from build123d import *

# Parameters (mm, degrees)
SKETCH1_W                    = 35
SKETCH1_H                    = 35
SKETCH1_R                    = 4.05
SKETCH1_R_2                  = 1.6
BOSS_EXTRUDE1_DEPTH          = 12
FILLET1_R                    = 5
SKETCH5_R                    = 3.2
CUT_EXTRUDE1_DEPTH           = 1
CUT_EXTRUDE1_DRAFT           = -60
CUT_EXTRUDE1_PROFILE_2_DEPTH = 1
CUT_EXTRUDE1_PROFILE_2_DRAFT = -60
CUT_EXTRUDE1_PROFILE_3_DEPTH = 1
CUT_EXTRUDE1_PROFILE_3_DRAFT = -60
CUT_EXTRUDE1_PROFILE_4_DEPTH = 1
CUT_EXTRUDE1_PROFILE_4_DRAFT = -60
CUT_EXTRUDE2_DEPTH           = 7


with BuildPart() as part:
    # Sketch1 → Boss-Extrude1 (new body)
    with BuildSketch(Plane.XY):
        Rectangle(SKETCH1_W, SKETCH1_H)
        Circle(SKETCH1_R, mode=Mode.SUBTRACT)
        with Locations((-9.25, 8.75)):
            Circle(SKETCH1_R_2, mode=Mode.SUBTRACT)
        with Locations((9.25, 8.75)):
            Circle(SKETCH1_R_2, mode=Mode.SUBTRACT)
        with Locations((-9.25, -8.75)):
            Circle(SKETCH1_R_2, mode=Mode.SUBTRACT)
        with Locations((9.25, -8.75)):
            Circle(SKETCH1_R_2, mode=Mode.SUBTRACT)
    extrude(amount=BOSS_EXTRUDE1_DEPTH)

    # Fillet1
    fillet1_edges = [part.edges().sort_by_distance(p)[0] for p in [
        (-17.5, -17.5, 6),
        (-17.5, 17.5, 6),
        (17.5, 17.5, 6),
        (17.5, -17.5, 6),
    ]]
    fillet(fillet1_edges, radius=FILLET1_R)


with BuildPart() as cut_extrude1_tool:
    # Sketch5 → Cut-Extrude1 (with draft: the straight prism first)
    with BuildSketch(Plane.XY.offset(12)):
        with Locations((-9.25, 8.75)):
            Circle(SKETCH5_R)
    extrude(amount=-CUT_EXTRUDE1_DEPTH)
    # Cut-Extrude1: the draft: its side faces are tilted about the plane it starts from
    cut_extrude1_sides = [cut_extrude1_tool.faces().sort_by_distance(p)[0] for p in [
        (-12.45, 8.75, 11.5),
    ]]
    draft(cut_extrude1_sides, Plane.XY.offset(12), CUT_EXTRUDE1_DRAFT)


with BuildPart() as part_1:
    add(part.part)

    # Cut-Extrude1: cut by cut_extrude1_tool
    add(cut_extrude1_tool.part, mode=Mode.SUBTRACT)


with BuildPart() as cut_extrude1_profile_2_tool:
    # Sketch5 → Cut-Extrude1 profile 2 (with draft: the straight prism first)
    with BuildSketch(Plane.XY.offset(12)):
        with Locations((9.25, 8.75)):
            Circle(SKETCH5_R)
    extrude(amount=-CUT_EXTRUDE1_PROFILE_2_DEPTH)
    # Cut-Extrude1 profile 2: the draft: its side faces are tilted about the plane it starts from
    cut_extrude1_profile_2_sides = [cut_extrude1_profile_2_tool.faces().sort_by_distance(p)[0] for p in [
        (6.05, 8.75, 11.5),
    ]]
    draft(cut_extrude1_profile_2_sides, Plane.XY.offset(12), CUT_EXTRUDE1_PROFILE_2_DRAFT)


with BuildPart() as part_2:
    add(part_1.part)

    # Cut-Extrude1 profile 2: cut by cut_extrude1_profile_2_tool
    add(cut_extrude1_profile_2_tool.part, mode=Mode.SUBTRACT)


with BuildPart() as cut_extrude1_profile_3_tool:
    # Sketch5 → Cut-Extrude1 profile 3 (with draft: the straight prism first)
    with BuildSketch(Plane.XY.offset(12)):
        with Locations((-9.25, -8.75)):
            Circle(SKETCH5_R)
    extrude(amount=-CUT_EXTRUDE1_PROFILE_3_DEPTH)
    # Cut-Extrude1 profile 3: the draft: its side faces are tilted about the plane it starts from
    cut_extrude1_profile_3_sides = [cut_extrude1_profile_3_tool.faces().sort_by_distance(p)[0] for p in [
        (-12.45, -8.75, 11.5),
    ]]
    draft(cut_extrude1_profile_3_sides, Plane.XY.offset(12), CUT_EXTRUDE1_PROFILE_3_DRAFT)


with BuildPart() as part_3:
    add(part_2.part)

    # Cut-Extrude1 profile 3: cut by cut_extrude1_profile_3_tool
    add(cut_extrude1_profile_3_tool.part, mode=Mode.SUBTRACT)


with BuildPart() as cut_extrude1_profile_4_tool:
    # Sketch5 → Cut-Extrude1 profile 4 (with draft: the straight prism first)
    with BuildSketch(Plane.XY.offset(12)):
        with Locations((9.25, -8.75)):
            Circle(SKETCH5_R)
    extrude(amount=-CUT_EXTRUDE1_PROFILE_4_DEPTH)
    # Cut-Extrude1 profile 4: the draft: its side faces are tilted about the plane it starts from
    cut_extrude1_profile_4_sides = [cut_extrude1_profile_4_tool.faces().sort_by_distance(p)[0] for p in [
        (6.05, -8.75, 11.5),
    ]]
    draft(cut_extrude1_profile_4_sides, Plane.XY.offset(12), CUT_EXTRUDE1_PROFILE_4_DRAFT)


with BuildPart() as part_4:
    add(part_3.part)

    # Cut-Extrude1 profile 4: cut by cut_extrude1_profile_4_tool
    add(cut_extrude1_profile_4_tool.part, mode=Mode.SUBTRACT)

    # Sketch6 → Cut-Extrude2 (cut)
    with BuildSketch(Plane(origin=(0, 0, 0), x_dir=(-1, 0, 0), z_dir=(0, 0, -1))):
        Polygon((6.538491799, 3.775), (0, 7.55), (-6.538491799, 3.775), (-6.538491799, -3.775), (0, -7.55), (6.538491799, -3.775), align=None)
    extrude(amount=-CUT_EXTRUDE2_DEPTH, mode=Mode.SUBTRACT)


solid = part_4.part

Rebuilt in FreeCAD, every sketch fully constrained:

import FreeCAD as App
import Part
import Sketcher

V = App.Vector
Q = App.Units.Quantity


def edges_at(feature, points):
    """Names of the edges that pass closest to the given points."""
    edges = feature.Shape.Edges
    near = lambda p: min(range(len(edges)), key=lambda i: edges[i].distToShape(Part.Vertex(*p))[0])
    return sorted({f"Edge{near(p) + 1}" for p in points})


def faces_at(feature, points):
    """Names of the faces that lie closest to the given points."""
    faces = feature.Shape.Faces
    near = lambda p: min(range(len(faces)), key=lambda i: faces[i].distToShape(Part.Vertex(*p))[0])
    return sorted({f"Face{near(p) + 1}" for p in points})


def add_polygon(sketch, points):
    """Adds a closed chain of lines whose ends are joined by coincident constraints."""
    first, n = sketch.GeometryCount, len(points)
    for a, b in zip(points, points[1:] + points[:1]):
        sketch.addGeometry(Part.LineSegment(App.Vector(*a, 0), App.Vector(*b, 0)), False)
    for i in range(n):
        sketch.addConstraint(Sketcher.Constraint("Coincident", first + i, 2, first + (i + 1) % n, 1))

doc = App.newDocument("Part")
body = doc.addObject("PartDesign::Body", "Body")

sketch1 = body.newObject("Sketcher::SketchObject", "Sketch")
sketch1.AttachmentSupport = (doc.getObject("XY_Plane"), [""])
sketch1.MapMode = "FlatFace"
add_polygon(sketch1, [(-17.5, 17.5), (-17.5, -17.5), (17.5, -17.5), (17.5, 17.5)])
sketch1.addGeometry(Part.Circle(V(-9.25, -8.75, 0), V(0, 0, 1), 1.6), False)
sketch1.addGeometry(Part.Circle(V(9.25, -8.75, 0), V(0, 0, 1), 1.6), False)
sketch1.addGeometry(Part.Circle(V(-9.25, 8.75, 0), V(0, 0, 1), 1.6), False)
sketch1.addGeometry(Part.Circle(V(0, 0, 0), V(0, 0, 1), 4.05), False)
sketch1.addGeometry(Part.Circle(V(9.25, 8.75, 0), V(0, 0, 1), 1.6), False)
sketch1.addConstraint([
    Sketcher.Constraint("Vertical", 0),
    Sketcher.Constraint("Horizontal", 1),
    Sketcher.Constraint("Vertical", 2),
    Sketcher.Constraint("Horizontal", 3),
    Sketcher.Constraint("Coincident", 7, 3, -1, 1),
    Sketcher.Constraint("Equal", 4, 5),
    Sketcher.Constraint("Equal", 5, 6),
    Sketcher.Constraint("Equal", 6, 8),
    Sketcher.Constraint("Symmetric", 5, 3, 6, 3, -1, 1),
    Sketcher.Constraint("Symmetric", 4, 3, 8, 3, -1, 1),
    Sketcher.Constraint("Symmetric", 0, 2, 2, 2, -1, 1),
    Sketcher.Constraint("Symmetric", 4, 3, 5, 3, -2),
    Sketcher.Constraint("Equal", 3, 0),
    Sketcher.Constraint("Diameter", 4, Q("3.2 mm")),
    Sketcher.Constraint("Diameter", 7, Q("8.1 mm")),
    Sketcher.Constraint("DistanceX", 1, 1, 1, 2, Q("35 mm")),
    Sketcher.Constraint("DistanceX", 4, 3, 5, 3, Q("18.5 mm")),
    Sketcher.Constraint("DistanceY", 4, 3, 6, 3, Q("17.5 mm")),
])
pad1 = body.newObject("PartDesign::Pad", "Pad")
pad1.Profile = sketch1
pad1.Length = 12
doc.recompute()

fillet = body.newObject("PartDesign::Fillet", "Fillet")
fillet.Base = (pad1, edges_at(pad1, [
    (-17.5, -17.5, 6),
    (-17.5, 17.5, 6),
    (17.5, 17.5, 6),
    (17.5, -17.5, 6),
]))
fillet.Radius = 5
body2 = doc.addObject("PartDesign::Body", "Body001")

sketch2 = body2.newObject("Sketcher::SketchObject", "Sketch001")
sketch2.AttachmentSupport = (doc.getObject("XY_Plane001"), [""])
sketch2.MapMode = "FlatFace"
sketch2.AttachmentOffset = App.Placement(V(0, 0, 12), App.Rotation())
sketch2.addGeometry(Part.Circle(V(-9.25, 8.75, 0), V(0, 0, 1), 3.2), False)
sketch2.addConstraint([
    Sketcher.Constraint("Diameter", 0, Q("6.4 mm")),
    Sketcher.Constraint("DistanceX", 0, 3, -1, 1, Q("9.25 mm")),
    Sketcher.Constraint("DistanceY", -1, 1, 0, 3, Q("8.75 mm")),
])
pad2 = body2.newObject("PartDesign::Pad", "Pad001")
pad2.Profile = sketch2
pad2.Length = 1
pad2.Reversed = True
doc.recompute()

datumplane = body2.newObject("PartDesign::Plane", "DatumPlane")
datumplane.AttachmentSupport = (doc.getObject("XY_Plane001"), [""])
datumplane.MapMode = "FlatFace"
datumplane.AttachmentOffset = App.Placement(V(0, 0, 12), App.Rotation())
draft = body2.newObject("PartDesign::Draft", "Draft")
draft.Base = (pad2, faces_at(pad2, [(-12.45, 8.75, 11.5)]))
draft.NeutralPlane = (datumplane, [""])
draft.Angle = 60
draft.Reversed = True
doc.recompute()

boolean = body.newObject("PartDesign::Boolean", "Boolean")
boolean.Type = "Cut"
boolean.addObjects([body2])
body3 = doc.addObject("PartDesign::Body", "Body002")

sketch3 = body3.newObject("Sketcher::SketchObject", "Sketch002")
sketch3.AttachmentSupport = (doc.getObject("XY_Plane002"), [""])
sketch3.MapMode = "FlatFace"
sketch3.AttachmentOffset = App.Placement(V(0, 0, 12), App.Rotation())
sketch3.addGeometry(Part.Circle(V(9.25, 8.75, 0), V(0, 0, 1), 3.2), False)
sketch3.addConstraint([
    Sketcher.Constraint("Diameter", 0, Q("6.4 mm")),
    Sketcher.Constraint("DistanceX", -1, 1, 0, 3, Q("9.25 mm")),
    Sketcher.Constraint("DistanceY", -1, 1, 0, 3, Q("8.75 mm")),
])
pad3 = body3.newObject("PartDesign::Pad", "Pad002")
pad3.Profile = sketch3
pad3.Length = 1
pad3.Reversed = True
doc.recompute()

datumplane2 = body3.newObject("PartDesign::Plane", "DatumPlane001")
datumplane2.AttachmentSupport = (doc.getObject("XY_Plane002"), [""])
datumplane2.MapMode = "FlatFace"
datumplane2.AttachmentOffset = App.Placement(V(0, 0, 12), App.Rotation())
draft2 = body3.newObject("PartDesign::Draft", "Draft001")
draft2.Base = (pad3, faces_at(pad3, [(6.05, 8.75, 11.5)]))
draft2.NeutralPlane = (datumplane2, [""])
draft2.Angle = 60
draft2.Reversed = True
doc.recompute()

boolean2 = body.newObject("PartDesign::Boolean", "Boolean001")
boolean2.Type = "Cut"
boolean2.addObjects([body3])
body4 = doc.addObject("PartDesign::Body", "Body003")

sketch4 = body4.newObject("Sketcher::SketchObject", "Sketch003")
sketch4.AttachmentSupport = (doc.getObject("XY_Plane003"), [""])
sketch4.MapMode = "FlatFace"
sketch4.AttachmentOffset = App.Placement(V(0, 0, 12), App.Rotation())
sketch4.addGeometry(Part.Circle(V(-9.25, -8.75, 0), V(0, 0, 1), 3.2), False)
sketch4.addConstraint([
    Sketcher.Constraint("Diameter", 0, Q("6.4 mm")),
    Sketcher.Constraint("DistanceX", 0, 3, -1, 1, Q("9.25 mm")),
    Sketcher.Constraint("DistanceY", 0, 3, -1, 1, Q("8.75 mm")),
])
pad4 = body4.newObject("PartDesign::Pad", "Pad003")
pad4.Profile = sketch4
pad4.Length = 1
pad4.Reversed = True
doc.recompute()

datumplane3 = body4.newObject("PartDesign::Plane", "DatumPlane002")
datumplane3.AttachmentSupport = (doc.getObject("XY_Plane003"), [""])
datumplane3.MapMode = "FlatFace"
datumplane3.AttachmentOffset = App.Placement(V(0, 0, 12), App.Rotation())
draft3 = body4.newObject("PartDesign::Draft", "Draft002")
draft3.Base = (pad4, faces_at(pad4, [(-12.45, -8.75, 11.5)]))
draft3.NeutralPlane = (datumplane3, [""])
draft3.Angle = 60
draft3.Reversed = True
doc.recompute()

boolean3 = body.newObject("PartDesign::Boolean", "Boolean002")
boolean3.Type = "Cut"
boolean3.addObjects([body4])
body5 = doc.addObject("PartDesign::Body", "Body004")

sketch5 = body5.newObject("Sketcher::SketchObject", "Sketch004")
sketch5.AttachmentSupport = (doc.getObject("XY_Plane004"), [""])
sketch5.MapMode = "FlatFace"
sketch5.AttachmentOffset = App.Placement(V(0, 0, 12), App.Rotation())
sketch5.addGeometry(Part.Circle(V(9.25, -8.75, 0), V(0, 0, 1), 3.2), False)
sketch5.addConstraint([
    Sketcher.Constraint("Diameter", 0, Q("6.4 mm")),
    Sketcher.Constraint("DistanceX", -1, 1, 0, 3, Q("9.25 mm")),
    Sketcher.Constraint("DistanceY", 0, 3, -1, 1, Q("8.75 mm")),
])
pad5 = body5.newObject("PartDesign::Pad", "Pad004")
pad5.Profile = sketch5
pad5.Length = 1
pad5.Reversed = True
doc.recompute()

datumplane4 = body5.newObject("PartDesign::Plane", "DatumPlane003")
datumplane4.AttachmentSupport = (doc.getObject("XY_Plane004"), [""])
datumplane4.MapMode = "FlatFace"
datumplane4.AttachmentOffset = App.Placement(V(0, 0, 12), App.Rotation())
draft4 = body5.newObject("PartDesign::Draft", "Draft003")
draft4.Base = (pad5, faces_at(pad5, [(6.05, -8.75, 11.5)]))
draft4.NeutralPlane = (datumplane4, [""])
draft4.Angle = 60
draft4.Reversed = True
doc.recompute()

boolean4 = body.newObject("PartDesign::Boolean", "Boolean003")
boolean4.Type = "Cut"
boolean4.addObjects([body5])

sketch6 = body.newObject("Sketcher::SketchObject", "Sketch005")
sketch6.AttachmentSupport = (doc.getObject("XY_Plane"), [""])
sketch6.MapMode = "FlatFace"
add_polygon(sketch6, [(-6.538492, 3.775), (0, 7.55), (6.538492, 3.775), (6.538492, -3.775), (0, -7.55), (-6.538492, -3.775)])
sketch6.addConstraint([
    Sketcher.Constraint("Vertical", 2),
    Sketcher.Constraint("Vertical", 5),
    Sketcher.Constraint("Symmetric", 0, 2, 3, 2, -1, 1),
    Sketcher.Constraint("Symmetric", 1, 2, 4, 2, -1, 1),
    Sketcher.Constraint("PointOnObject", 0, 2, -2),
    Sketcher.Constraint("Parallel", 0, 3),
    Sketcher.Constraint("Horizontal", 2, 2, 4, 2),
    Sketcher.Constraint("Angle", 0, Q("30 deg")),
    Sketcher.Constraint("DistanceY", 2, 2, 2, 1, Q("7.55 mm")),
    Sketcher.Constraint("DistanceY", 3, 2, 0, 2, Q("15.1 mm")),
])
pocket1 = body.newObject("PartDesign::Pocket", "Pocket")
pocket1.Profile = sketch6
pocket1.Length = 7
pocket1.Reversed = True

doc.recompute()
